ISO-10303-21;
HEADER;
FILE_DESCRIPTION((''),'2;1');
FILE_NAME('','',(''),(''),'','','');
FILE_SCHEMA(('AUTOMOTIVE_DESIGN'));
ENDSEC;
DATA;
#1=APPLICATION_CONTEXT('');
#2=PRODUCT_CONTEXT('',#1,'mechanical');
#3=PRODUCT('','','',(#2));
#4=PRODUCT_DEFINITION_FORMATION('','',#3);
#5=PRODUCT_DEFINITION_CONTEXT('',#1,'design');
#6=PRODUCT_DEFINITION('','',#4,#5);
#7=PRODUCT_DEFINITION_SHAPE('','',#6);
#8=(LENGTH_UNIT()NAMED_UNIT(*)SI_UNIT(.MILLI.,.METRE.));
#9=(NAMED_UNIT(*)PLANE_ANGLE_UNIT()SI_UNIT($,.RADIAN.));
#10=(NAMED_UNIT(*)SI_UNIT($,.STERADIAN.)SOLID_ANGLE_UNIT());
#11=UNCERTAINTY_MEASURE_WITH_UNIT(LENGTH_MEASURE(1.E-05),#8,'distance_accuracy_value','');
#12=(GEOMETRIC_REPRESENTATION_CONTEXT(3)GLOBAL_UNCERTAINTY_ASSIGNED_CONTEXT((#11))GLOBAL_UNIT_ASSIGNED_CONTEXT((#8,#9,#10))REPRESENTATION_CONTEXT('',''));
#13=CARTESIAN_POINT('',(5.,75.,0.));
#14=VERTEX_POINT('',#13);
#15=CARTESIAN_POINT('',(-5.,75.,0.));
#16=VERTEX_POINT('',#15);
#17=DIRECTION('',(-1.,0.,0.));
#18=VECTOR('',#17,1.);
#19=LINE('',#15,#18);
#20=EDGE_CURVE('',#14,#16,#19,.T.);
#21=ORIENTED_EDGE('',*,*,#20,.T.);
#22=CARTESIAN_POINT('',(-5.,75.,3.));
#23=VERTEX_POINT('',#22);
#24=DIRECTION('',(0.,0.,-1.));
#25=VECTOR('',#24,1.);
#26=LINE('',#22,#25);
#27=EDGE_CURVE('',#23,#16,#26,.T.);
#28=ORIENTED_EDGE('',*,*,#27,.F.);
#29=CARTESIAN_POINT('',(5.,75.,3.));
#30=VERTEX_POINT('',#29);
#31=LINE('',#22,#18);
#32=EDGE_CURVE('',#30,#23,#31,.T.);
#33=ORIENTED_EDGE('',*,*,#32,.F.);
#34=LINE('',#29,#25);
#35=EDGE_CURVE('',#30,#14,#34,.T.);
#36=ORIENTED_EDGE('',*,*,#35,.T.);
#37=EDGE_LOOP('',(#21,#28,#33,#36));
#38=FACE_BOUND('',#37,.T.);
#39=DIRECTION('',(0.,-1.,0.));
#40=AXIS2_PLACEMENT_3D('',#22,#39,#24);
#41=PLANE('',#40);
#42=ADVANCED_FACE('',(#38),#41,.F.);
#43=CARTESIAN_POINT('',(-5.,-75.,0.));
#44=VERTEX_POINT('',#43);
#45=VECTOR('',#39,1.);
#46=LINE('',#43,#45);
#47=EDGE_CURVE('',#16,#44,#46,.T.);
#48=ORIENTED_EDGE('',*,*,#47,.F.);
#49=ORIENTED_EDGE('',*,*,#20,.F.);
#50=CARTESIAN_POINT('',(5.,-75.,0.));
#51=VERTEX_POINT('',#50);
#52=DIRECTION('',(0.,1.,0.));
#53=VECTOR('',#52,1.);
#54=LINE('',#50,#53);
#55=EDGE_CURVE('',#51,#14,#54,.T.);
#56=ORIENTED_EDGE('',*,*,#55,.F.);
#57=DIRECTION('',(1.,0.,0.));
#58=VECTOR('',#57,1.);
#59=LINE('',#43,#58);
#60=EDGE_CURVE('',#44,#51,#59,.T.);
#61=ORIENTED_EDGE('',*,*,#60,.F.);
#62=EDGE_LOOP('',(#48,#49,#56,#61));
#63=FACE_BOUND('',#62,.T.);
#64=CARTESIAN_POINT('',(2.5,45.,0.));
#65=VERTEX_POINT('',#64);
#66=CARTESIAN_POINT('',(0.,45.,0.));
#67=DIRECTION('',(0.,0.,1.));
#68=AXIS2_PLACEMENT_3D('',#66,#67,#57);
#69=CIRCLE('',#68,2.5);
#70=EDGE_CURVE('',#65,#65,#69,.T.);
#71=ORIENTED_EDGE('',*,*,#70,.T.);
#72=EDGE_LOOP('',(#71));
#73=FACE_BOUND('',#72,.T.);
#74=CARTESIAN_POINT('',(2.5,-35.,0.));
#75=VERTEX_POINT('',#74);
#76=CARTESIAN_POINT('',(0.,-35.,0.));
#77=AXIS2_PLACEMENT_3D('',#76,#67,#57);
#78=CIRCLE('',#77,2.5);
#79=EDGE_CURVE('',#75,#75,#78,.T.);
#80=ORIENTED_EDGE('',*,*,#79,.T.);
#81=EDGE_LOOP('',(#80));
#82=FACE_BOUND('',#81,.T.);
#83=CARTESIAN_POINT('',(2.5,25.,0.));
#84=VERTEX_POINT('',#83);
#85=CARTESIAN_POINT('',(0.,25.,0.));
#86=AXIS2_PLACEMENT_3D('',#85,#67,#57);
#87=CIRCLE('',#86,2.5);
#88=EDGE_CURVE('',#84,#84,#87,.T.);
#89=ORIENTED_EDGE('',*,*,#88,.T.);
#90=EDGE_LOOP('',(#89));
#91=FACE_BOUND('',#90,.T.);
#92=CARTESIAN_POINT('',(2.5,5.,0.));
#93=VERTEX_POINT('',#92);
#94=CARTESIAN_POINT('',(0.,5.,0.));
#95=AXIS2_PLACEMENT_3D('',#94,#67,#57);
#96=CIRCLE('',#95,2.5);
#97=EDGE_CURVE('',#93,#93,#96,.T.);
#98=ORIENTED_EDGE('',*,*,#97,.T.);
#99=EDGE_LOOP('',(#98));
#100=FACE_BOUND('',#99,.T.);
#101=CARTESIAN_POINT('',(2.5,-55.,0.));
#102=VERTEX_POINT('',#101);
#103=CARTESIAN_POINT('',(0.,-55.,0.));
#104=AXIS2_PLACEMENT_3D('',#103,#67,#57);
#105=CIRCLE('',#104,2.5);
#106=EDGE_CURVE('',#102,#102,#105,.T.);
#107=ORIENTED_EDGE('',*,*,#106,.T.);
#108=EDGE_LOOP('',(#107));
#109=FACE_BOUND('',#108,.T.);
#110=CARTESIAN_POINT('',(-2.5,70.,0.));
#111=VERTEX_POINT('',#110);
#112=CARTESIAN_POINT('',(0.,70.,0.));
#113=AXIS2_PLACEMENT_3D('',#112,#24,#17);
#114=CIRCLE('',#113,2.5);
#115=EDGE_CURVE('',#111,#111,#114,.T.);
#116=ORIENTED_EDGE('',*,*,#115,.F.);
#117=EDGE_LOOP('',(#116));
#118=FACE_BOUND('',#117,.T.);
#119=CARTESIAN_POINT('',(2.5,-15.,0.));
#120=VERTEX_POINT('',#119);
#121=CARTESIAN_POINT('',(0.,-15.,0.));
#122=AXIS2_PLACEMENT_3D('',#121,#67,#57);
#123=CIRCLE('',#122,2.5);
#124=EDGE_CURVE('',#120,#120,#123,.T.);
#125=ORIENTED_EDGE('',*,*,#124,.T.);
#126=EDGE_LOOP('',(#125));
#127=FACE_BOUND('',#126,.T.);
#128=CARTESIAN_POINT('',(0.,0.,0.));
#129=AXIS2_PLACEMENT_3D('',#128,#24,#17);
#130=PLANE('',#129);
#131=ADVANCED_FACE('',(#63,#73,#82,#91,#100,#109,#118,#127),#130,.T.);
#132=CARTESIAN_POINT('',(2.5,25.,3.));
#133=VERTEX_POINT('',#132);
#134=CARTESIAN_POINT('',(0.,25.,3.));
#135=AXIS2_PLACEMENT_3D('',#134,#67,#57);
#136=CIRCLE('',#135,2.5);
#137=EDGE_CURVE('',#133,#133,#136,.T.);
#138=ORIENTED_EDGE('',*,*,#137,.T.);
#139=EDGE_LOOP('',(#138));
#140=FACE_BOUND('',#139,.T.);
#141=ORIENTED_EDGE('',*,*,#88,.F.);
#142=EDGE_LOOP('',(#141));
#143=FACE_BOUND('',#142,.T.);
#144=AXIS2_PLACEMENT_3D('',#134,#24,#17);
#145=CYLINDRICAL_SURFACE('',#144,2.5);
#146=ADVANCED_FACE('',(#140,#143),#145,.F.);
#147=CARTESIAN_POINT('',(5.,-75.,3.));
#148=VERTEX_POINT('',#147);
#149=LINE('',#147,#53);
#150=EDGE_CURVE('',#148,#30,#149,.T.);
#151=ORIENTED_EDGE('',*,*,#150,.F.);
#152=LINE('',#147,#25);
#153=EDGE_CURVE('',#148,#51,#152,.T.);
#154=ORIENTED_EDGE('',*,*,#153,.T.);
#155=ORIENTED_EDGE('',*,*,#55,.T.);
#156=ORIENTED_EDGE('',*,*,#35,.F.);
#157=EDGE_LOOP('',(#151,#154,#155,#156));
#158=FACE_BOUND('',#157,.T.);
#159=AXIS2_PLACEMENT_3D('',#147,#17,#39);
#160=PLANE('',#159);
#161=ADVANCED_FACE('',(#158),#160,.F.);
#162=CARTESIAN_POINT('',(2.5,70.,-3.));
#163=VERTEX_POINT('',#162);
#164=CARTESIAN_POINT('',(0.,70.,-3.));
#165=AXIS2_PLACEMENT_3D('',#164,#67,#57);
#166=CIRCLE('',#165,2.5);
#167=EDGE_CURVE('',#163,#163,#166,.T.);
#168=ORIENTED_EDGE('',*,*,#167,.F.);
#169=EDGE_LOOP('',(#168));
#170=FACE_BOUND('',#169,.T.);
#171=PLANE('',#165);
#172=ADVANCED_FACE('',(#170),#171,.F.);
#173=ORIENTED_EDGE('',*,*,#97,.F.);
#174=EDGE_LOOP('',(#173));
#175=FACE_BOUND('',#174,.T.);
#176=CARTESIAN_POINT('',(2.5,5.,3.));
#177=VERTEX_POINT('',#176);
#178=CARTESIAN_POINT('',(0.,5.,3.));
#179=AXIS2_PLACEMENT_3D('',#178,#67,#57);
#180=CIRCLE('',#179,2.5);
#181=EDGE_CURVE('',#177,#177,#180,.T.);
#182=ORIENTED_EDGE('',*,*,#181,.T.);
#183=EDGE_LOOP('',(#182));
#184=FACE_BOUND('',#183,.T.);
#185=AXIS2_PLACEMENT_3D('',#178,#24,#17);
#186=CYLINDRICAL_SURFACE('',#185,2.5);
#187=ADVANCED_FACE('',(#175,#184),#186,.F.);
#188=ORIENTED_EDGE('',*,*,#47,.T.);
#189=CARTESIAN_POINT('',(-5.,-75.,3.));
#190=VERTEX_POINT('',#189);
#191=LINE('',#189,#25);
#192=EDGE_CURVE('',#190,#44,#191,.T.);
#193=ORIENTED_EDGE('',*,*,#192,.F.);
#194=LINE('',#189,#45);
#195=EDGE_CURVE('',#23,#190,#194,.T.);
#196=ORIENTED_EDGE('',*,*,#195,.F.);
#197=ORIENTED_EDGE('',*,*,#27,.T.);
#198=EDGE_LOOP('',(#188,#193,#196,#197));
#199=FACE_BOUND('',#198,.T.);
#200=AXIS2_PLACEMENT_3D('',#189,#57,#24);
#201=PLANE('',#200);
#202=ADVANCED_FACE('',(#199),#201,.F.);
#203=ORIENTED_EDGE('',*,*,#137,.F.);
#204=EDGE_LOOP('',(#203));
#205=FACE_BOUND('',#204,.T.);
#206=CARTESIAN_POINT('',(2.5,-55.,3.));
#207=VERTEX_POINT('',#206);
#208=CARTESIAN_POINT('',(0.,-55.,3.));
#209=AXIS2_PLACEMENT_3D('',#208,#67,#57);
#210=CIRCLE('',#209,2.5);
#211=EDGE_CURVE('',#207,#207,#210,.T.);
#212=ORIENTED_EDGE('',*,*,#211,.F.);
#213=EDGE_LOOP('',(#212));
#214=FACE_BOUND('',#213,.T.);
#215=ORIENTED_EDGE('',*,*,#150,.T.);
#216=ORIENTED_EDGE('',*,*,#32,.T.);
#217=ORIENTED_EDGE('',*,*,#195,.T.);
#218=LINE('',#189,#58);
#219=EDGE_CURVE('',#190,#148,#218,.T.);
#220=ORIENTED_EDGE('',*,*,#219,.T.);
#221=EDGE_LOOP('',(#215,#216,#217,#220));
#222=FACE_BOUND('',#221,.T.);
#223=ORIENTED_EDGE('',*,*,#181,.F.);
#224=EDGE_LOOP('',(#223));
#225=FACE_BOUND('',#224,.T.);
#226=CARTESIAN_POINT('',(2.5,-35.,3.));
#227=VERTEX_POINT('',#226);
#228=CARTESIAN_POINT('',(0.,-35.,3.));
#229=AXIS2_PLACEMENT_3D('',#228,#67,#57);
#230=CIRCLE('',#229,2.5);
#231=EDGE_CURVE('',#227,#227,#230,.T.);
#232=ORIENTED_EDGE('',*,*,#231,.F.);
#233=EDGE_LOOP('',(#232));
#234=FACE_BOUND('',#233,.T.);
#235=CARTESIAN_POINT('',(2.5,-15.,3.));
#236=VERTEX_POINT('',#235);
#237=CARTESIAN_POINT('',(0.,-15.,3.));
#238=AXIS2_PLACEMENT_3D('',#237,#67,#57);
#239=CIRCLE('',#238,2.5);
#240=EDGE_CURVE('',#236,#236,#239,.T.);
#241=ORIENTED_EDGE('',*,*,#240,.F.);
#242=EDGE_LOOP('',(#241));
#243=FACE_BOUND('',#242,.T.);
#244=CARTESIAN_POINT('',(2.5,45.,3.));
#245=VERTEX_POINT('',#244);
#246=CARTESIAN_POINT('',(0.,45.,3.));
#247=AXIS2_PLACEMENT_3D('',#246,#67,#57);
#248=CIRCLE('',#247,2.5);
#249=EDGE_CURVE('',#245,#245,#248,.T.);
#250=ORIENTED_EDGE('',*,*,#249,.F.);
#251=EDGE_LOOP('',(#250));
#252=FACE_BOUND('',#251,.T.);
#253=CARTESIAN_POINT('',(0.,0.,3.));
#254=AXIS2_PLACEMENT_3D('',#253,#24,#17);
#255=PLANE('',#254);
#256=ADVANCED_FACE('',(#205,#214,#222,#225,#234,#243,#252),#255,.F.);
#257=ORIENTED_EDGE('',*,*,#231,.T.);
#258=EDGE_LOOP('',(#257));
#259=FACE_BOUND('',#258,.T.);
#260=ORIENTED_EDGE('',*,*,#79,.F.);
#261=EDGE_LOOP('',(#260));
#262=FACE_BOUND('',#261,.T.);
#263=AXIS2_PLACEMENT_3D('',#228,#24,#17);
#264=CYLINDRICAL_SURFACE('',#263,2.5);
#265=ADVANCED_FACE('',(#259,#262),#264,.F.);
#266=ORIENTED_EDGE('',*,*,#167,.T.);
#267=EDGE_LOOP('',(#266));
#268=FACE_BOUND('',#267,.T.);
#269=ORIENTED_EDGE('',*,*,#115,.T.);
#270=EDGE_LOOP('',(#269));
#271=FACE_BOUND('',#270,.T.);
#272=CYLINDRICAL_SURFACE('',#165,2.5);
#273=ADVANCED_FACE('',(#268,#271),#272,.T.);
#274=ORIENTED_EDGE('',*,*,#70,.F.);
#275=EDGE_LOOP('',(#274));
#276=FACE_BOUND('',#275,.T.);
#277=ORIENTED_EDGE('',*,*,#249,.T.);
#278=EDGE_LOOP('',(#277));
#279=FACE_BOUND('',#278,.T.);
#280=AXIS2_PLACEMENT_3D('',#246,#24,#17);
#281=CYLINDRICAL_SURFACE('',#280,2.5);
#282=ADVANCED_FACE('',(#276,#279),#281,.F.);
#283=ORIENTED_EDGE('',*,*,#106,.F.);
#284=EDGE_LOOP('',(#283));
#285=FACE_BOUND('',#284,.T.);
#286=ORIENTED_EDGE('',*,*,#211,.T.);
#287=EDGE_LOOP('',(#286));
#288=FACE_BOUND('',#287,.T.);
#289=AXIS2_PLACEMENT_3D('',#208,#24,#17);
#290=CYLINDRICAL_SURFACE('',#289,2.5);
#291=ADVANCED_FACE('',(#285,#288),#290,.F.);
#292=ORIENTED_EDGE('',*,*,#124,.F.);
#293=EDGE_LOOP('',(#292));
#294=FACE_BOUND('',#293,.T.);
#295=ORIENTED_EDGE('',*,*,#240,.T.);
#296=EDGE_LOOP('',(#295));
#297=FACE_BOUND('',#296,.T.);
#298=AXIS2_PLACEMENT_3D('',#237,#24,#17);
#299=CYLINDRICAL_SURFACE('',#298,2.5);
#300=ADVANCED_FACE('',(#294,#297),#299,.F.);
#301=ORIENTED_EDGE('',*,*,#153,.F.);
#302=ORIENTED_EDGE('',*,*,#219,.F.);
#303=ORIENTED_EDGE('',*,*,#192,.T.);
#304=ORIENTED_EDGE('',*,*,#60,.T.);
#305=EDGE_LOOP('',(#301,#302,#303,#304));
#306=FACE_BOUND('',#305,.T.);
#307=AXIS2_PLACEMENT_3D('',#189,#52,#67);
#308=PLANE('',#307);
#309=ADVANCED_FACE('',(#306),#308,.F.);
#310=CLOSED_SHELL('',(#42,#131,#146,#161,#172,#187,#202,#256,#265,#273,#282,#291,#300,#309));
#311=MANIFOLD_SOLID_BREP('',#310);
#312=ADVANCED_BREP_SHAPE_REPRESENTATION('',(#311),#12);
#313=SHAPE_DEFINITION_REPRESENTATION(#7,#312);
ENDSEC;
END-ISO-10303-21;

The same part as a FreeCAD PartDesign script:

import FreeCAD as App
import Part
import Sketcher
from FreeCAD import Vector


def add_polygon(sketch, points):
    """Adds a closed chain of lines whose ends are joined by coincident constraints."""
    first, n = sketch.GeometryCount, len(points)
    for a, b in zip(points, points[1:] + points[:1]):
        sketch.addGeometry(Part.LineSegment(App.Vector(*a, 0), App.Vector(*b, 0)), False)
    for i in range(n):
        sketch.addConstraint(Sketcher.Constraint("Coincident", first + i, 2, first + (i + 1) % n, 1))

doc = App.newDocument("Part")
body = doc.addObject("PartDesign::Body", "Body")

sketch1 = body.newObject("Sketcher::SketchObject", "Sketch")
sketch1.AttachmentSupport = (doc.getObject("XY_Plane"), [""])
sketch1.MapMode = "FlatFace"
add_polygon(sketch1, [(-5, 75), (-5, -75), (5, -75), (5, 75)])
sketch1.addGeometry(Part.Circle(Vector(0, -55, 0), Vector(0, 0, 1), 2.5), False)
sketch1.addGeometry(Part.Circle(Vector(0, -35, 0), Vector(0, 0, 1), 2.5), False)
sketch1.addGeometry(Part.Circle(Vector(0, -15, 0), Vector(0, 0, 1), 2.5), False)
sketch1.addGeometry(Part.Circle(Vector(0, 5, 0), Vector(0, 0, 1), 2.5), False)
sketch1.addGeometry(Part.Circle(Vector(0, 25, 0), Vector(0, 0, 1), 2.5), False)
sketch1.addGeometry(Part.Circle(Vector(0, 45, 0), Vector(0, 0, 1), 2.5), False)
sketch1.addConstraint([
    Sketcher.Constraint("Vertical", 0),
    Sketcher.Constraint("Horizontal", 1),
    Sketcher.Constraint("Vertical", 2),
    Sketcher.Constraint("Horizontal", 3),
    Sketcher.Constraint("Equal", 4, 5),
    Sketcher.Constraint("Equal", 5, 6),
    Sketcher.Constraint("Equal", 6, 7),
    Sketcher.Constraint("Equal", 7, 8),
    Sketcher.Constraint("Equal", 8, 9),
    Sketcher.Constraint("Symmetric", 0, 2, 2, 2, -1, 1),
    Sketcher.Constraint("PointOnObject", 4, 3, -2),
    Sketcher.Constraint("PointOnObject", 5, 3, -2),
    Sketcher.Constraint("PointOnObject", 6, 3, -2),
    Sketcher.Constraint("PointOnObject", 7, 3, -2),
    Sketcher.Constraint("PointOnObject", 8, 3, -2),
    Sketcher.Constraint("PointOnObject", 9, 3, -2),
    Sketcher.Constraint("Diameter", 4, 5.0),
    Sketcher.Constraint("DistanceX", 1, 1, 1, 2, 10.0),
    Sketcher.Constraint("DistanceY", 0, 2, 0, 1, 150.0),
    Sketcher.Constraint("DistanceY", 4, 3, -1, 1, 55.0),
    Sketcher.Constraint("DistanceY", 5, 3, -1, 1, 35.0),
    Sketcher.Constraint("DistanceY", 6, 3, -1, 1, 15.0),
    Sketcher.Constraint("DistanceY", -1, 1, 7, 3, 5.0),
    Sketcher.Constraint("DistanceY", -1, 1, 8, 3, 25.0),
    Sketcher.Constraint("DistanceY", -1, 1, 9, 3, 45.0),
])
pad1 = body.newObject("PartDesign::Pad", "Pad")
pad1.Profile = sketch1
pad1.Length = 3

sketch2 = body.newObject("Sketcher::SketchObject", "Sketch001")
sketch2.AttachmentSupport = (doc.getObject("XY_Plane"), [""])
sketch2.MapMode = "FlatFace"
sketch2.AttachmentOffset = App.Placement(Vector(0, 0, 3), App.Rotation())
sketch2.addGeometry(Part.Circle(Vector(0, 70, 0), Vector(0, 0, 1), 2.5), False)
sketch2.addConstraint([
    Sketcher.Constraint("PointOnObject", 0, 3, -2),
    Sketcher.Constraint("Diameter", 0, 5.0),
    Sketcher.Constraint("DistanceY", -1, 1, 0, 3, 70.0),
])
pad2 = body.newObject("PartDesign::Pad", "Pad001")
pad2.Profile = sketch2
pad2.Length = 6
pad2.Reversed = True

doc.recompute()
